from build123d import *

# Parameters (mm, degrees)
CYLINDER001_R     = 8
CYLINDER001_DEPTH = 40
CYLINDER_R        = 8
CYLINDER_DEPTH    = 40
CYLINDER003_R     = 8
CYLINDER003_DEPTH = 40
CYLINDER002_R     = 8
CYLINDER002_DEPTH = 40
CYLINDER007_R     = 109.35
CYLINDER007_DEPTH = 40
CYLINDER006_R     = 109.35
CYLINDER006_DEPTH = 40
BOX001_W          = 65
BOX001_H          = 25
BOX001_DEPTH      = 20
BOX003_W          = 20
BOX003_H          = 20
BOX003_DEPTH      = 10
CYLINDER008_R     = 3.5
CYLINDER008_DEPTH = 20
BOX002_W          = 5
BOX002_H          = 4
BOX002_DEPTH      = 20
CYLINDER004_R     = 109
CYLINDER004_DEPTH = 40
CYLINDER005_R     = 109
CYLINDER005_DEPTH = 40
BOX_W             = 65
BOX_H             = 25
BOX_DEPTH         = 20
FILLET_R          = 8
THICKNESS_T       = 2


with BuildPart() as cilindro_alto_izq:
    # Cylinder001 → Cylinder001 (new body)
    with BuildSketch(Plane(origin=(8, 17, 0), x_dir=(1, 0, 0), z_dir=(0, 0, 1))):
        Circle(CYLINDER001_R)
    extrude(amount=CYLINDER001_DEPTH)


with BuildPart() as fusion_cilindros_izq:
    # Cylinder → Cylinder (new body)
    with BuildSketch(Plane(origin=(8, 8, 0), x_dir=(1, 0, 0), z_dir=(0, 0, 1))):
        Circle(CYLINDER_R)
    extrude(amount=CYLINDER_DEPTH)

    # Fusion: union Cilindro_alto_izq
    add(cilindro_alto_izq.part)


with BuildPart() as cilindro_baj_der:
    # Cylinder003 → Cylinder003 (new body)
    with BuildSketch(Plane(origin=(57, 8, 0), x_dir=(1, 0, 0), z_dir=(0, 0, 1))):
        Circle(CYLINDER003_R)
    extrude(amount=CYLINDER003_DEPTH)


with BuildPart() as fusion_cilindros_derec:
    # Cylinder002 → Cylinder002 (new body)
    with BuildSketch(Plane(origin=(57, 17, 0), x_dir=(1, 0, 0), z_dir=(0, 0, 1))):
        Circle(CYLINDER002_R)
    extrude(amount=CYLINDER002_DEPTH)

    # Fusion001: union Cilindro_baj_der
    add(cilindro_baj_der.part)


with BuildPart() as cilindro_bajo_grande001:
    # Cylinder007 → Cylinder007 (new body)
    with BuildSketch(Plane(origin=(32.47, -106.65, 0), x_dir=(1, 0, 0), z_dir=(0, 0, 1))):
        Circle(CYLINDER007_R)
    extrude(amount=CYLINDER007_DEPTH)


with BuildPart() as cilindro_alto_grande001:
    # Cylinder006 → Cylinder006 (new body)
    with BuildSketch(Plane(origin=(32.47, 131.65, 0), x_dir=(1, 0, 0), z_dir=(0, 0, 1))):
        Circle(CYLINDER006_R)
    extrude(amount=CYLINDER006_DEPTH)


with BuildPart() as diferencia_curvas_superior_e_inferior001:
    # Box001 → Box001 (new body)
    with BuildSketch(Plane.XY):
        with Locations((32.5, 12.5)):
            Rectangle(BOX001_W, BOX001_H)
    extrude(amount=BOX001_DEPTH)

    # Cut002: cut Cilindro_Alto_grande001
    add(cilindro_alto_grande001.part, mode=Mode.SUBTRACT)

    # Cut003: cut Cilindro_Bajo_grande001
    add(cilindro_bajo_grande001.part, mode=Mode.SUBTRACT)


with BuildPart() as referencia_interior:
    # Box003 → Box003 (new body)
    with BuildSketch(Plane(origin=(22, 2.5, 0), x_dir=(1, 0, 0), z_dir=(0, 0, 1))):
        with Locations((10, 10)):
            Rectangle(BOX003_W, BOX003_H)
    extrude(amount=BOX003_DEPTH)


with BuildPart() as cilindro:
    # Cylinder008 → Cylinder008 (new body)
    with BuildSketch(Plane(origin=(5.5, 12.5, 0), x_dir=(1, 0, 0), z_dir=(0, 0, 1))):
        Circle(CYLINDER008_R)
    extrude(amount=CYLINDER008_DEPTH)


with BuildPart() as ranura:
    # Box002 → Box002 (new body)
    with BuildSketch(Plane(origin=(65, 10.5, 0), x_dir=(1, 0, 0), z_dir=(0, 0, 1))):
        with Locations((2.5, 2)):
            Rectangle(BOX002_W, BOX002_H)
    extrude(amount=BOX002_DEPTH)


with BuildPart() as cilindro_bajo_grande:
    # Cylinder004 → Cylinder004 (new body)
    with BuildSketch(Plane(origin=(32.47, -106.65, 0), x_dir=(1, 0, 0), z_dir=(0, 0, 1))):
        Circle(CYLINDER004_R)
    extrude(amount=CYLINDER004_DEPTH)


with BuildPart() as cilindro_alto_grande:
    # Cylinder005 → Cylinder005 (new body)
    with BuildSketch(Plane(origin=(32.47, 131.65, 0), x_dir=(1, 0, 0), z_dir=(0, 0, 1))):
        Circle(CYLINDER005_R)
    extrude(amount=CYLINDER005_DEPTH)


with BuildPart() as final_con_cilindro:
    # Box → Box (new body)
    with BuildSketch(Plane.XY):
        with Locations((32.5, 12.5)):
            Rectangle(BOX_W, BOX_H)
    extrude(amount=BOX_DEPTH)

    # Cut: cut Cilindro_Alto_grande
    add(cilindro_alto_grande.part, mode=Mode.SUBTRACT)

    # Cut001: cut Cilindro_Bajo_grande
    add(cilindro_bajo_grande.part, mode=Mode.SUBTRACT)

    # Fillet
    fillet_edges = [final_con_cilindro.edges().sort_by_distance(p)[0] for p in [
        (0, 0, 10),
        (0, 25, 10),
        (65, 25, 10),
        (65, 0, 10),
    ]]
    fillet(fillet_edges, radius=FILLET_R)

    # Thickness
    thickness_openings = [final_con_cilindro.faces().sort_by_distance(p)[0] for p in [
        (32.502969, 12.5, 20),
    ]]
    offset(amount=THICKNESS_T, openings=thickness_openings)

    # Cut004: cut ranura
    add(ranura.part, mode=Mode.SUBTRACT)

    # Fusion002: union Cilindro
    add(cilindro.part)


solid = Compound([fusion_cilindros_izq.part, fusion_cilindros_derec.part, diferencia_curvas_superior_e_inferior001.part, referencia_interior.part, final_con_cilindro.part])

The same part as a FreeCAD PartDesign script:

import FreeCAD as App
import Part
import Sketcher
from FreeCAD import Vector


def edges_at(feature, points):
    """Names of the edges that pass closest to the given points."""
    edges = feature.Shape.Edges
    near = lambda p: min(range(len(edges)), key=lambda i: edges[i].distToShape(Part.Vertex(*p))[0])
    return sorted({f"Edge{near(p) + 1}" for p in points})


def faces_at(feature, points):
    """Names of the faces that lie closest to the given points."""
    faces = feature.Shape.Faces
    near = lambda p: min(range(len(faces)), key=lambda i: faces[i].distToShape(Part.Vertex(*p))[0])
    return sorted({f"Face{near(p) + 1}" for p in points})

doc = App.newDocument("Part")
body = doc.addObject("PartDesign::Body", "Body")

# Sketch on XY plane
sketch1 = doc.addObject("Sketcher::SketchObject", "Sketch")
body.addObject(sketch1)
sketch1.AttachmentSupport = (doc.XY_Plane, [""])
sketch1.MapMode = "FlatFace"
sketch1.addGeometry(Part.Circle(Vector(8, 17, 0), Vector(0, 0, 1), 8), False)
sketch1.addConstraint([
    Sketcher.Constraint("Diameter", 0, 16.0),
    Sketcher.Constraint("DistanceX", -1, 1, 0, 3, 8.0),
    Sketcher.Constraint("DistanceY", -1, 1, 0, 3, 17.0),
])
pad1 = doc.addObject("PartDesign::Pad", "Pad")
body.addObject(pad1)
pad1.Profile = sketch1
pad1.Length = 40
body2 = doc.addObject("PartDesign::Body", "Body001")

# Sketch on XY plane
sketch2 = doc.addObject("Sketcher::SketchObject", "Sketch001")
body2.addObject(sketch2)
sketch2.AttachmentSupport = (doc.getObject("XY_Plane001"), [""])
sketch2.MapMode = "FlatFace"
sketch2.addGeometry(Part.Circle(Vector(8, 8, 0), Vector(0, 0, 1), 8), False)
sketch2.addConstraint([
    Sketcher.Constraint("Diameter", 0, 16.0),
    Sketcher.Constraint("DistanceX", -1, 1, 0, 3, 8.0),
    Sketcher.Constraint("DistanceY", -1, 1, 0, 3, 8.0),
])
pad2 = doc.addObject("PartDesign::Pad", "Pad001")
body2.addObject(pad2)
pad2.Profile = sketch2
pad2.Length = 40
doc.recompute()

boolean = doc.addObject("PartDesign::Boolean", "Boolean")
body2.addObject(boolean)
boolean.Type = "Fuse"
boolean.addObjects([body])
body3 = doc.addObject("PartDesign::Body", "Body002")

# Sketch on XY plane
sketch3 = doc.addObject("Sketcher::SketchObject", "Sketch002")
body3.addObject(sketch3)
sketch3.AttachmentSupport = (doc.getObject("XY_Plane002"), [""])
sketch3.MapMode = "FlatFace"
sketch3.addGeometry(Part.Circle(Vector(57, 8, 0), Vector(0, 0, 1), 8), False)
sketch3.addConstraint([
    Sketcher.Constraint("Diameter", 0, 16.0),
    Sketcher.Constraint("DistanceX", -1, 1, 0, 3, 57.0),
    Sketcher.Constraint("DistanceY", -1, 1, 0, 3, 8.0),
])
pad3 = doc.addObject("PartDesign::Pad", "Pad002")
body3.addObject(pad3)
pad3.Profile = sketch3
pad3.Length = 40
body4 = doc.addObject("PartDesign::Body", "Body003")

# Sketch on XY plane
sketch4 = doc.addObject("Sketcher::SketchObject", "Sketch003")
body4.addObject(sketch4)
sketch4.AttachmentSupport = (doc.getObject("XY_Plane003"), [""])
sketch4.MapMode = "FlatFace"
sketch4.addGeometry(Part.Circle(Vector(57, 17, 0), Vector(0, 0, 1), 8), False)
sketch4.addConstraint([
    Sketcher.Constraint("Diameter", 0, 16.0),
    Sketcher.Constraint("DistanceX", -1, 1, 0, 3, 57.0),
    Sketcher.Constraint("DistanceY", -1, 1, 0, 3, 17.0),
])
pad4 = doc.addObject("PartDesign::Pad", "Pad003")
body4.addObject(pad4)
pad4.Profile = sketch4
pad4.Length = 40
doc.recompute()

boolean2 = doc.addObject("PartDesign::Boolean", "Boolean001")
body4.addObject(boolean2)
boolean2.Type = "Fuse"
boolean2.addObjects([body3])
body5 = doc.addObject("PartDesign::Body", "Body004")

# Sketch on XY plane
sketch5 = doc.addObject("Sketcher::SketchObject", "Sketch004")
body5.addObject(sketch5)
sketch5.AttachmentSupport = (doc.getObject("XY_Plane004"), [""])
sketch5.MapMode = "FlatFace"
sketch5.addGeometry(Part.Circle(Vector(32, -107, 0), Vector(0, 0, 1), 109), False)
sketch5.addConstraint([
    Sketcher.Constraint("Diameter", 0, 218.7),
    Sketcher.Constraint("DistanceX", -1, 1, 0, 3, 32.47),
    Sketcher.Constraint("DistanceY", 0, 3, -1, 1, 106.65),
])
pad5 = doc.addObject("PartDesign::Pad", "Pad004")
body5.addObject(pad5)
pad5.Profile = sketch5
pad5.Length = 40
body6 = doc.addObject("PartDesign::Body", "Body005")

# Sketch on XY plane
sketch6 = doc.addObject("Sketcher::SketchObject", "Sketch005")
body6.addObject(sketch6)
sketch6.AttachmentSupport = (doc.getObject("XY_Plane005"), [""])
sketch6.MapMode = "FlatFace"
sketch6.addGeometry(Part.Circle(Vector(32, 132, 0), Vector(0, 0, 1), 109), False)
sketch6.addConstraint([
    Sketcher.Constraint("Diameter", 0, 218.7),
    Sketcher.Constraint("DistanceX", -1, 1, 0, 3, 32.47),
    Sketcher.Constraint("DistanceY", -1, 1, 0, 3, 131.65),
])
pad6 = doc.addObject("PartDesign::Pad", "Pad005")
body6.addObject(pad6)
pad6.Profile = sketch6
pad6.Length = 40
body7 = doc.addObject("PartDesign::Body", "Body006")

# Sketch on XY plane
sketch7 = doc.addObject("Sketcher::SketchObject", "Sketch006")
body7.addObject(sketch7)
sketch7.AttachmentSupport = (doc.getObject("XY_Plane006"), [""])
sketch7.MapMode = "FlatFace"
sketch7.addGeometry([
    Part.LineSegment(Vector(0, 25, 0), Vector(0, 0, 0)),
    Part.LineSegment(Vector(0, 0, 0), Vector(65, 0, 0)),
    Part.LineSegment(Vector(65, 0, 0), Vector(65, 25, 0)),
    Part.LineSegment(Vector(65, 25, 0), Vector(0, 25, 0)),
], False)
sketch7.addConstraint([
    Sketcher.Constraint("Coincident", 0, 2, 1, 1),
    Sketcher.Constraint("Coincident", 1, 2, 2, 1),
    Sketcher.Constraint("Coincident", 2, 2, 3, 1),
    Sketcher.Constraint("Coincident", 3, 2, 0, 1),
    Sketcher.Constraint("Vertical", 0),
    Sketcher.Constraint("Horizontal", 1),
    Sketcher.Constraint("Vertical", 2),
    Sketcher.Constraint("Horizontal", 3),
    Sketcher.Constraint("Coincident", 0, 2, -1, 1),
    Sketcher.Constraint("DistanceX", 1, 1, 1, 2, 65.0),
    Sketcher.Constraint("DistanceY", 0, 2, 0, 1, 25.0),
])
pad7 = doc.addObject("PartDesign::Pad", "Pad006")
body7.addObject(pad7)
pad7.Profile = sketch7
pad7.Length = 20
doc.recompute()

boolean3 = doc.addObject("PartDesign::Boolean", "Boolean002")
body7.addObject(boolean3)
boolean3.Type = "Cut"
boolean3.addObjects([body6])
doc.recompute()

boolean4 = doc.addObject("PartDesign::Boolean", "Boolean003")
body7.addObject(boolean4)
boolean4.Type = "Cut"
boolean4.addObjects([body5])
body8 = doc.addObject("PartDesign::Body", "Body007")

# Sketch on XY plane
sketch8 = doc.addObject("Sketcher::SketchObject", "Sketch007")
body8.addObject(sketch8)
sketch8.AttachmentSupport = (doc.getObject("XY_Plane007"), [""])
sketch8.MapMode = "FlatFace"
sketch8.addGeometry([
    Part.LineSegment(Vector(22, 22, 0), Vector(22, 2, 0)),
    Part.LineSegment(Vector(22, 2, 0), Vector(42, 2, 0)),
    Part.LineSegment(Vector(42, 2, 0), Vector(42, 22, 0)),
    Part.LineSegment(Vector(42, 22, 0), Vector(22, 22, 0)),
], False)
sketch8.addConstraint([
    Sketcher.Constraint("Coincident", 0, 2, 1, 1),
    Sketcher.Constraint("Coincident", 1, 2, 2, 1),
    Sketcher.Constraint("Coincident", 2, 2, 3, 1),
    Sketcher.Constraint("Coincident", 3, 2, 0, 1),
    Sketcher.Constraint("Vertical", 0),
    Sketcher.Constraint("Horizontal", 1),
    Sketcher.Constraint("Vertical", 2),
    Sketcher.Constraint("Horizontal", 3),
    Sketcher.Constraint("Equal", 3, 0),
    Sketcher.Constraint("DistanceX", 1, 1, 1, 2, 20.0),
    Sketcher.Constraint("DistanceX", -1, 1, 0, 2, 22.0),
    Sketcher.Constraint("DistanceY", -1, 1, 0, 2, 2.5),
])
pad8 = doc.addObject("PartDesign::Pad", "Pad007")
body8.addObject(pad8)
pad8.Profile = sketch8
pad8.Length = 10
body9 = doc.addObject("PartDesign::Body", "Body008")

# Sketch on XY plane
sketch9 = doc.addObject("Sketcher::SketchObject", "Sketch008")
body9.addObject(sketch9)
sketch9.AttachmentSupport = (doc.getObject("XY_Plane008"), [""])
sketch9.MapMode = "FlatFace"
sketch9.addGeometry(Part.Circle(Vector(5.5, 12.5, 0), Vector(0, 0, 1), 3.5), False)
sketch9.addConstraint([
    Sketcher.Constraint("Diameter", 0, 7.0),
    Sketcher.Constraint("DistanceX", -1, 1, 0, 3, 5.5),
    Sketcher.Constraint("DistanceY", -1, 1, 0, 3, 12.5),
])
pad9 = doc.addObject("PartDesign::Pad", "Pad008")
body9.addObject(pad9)
pad9.Profile = sketch9
pad9.Length = 20
body10 = doc.addObject("PartDesign::Body", "Body009")

# Sketch on XY plane
sketch10 = doc.addObject("Sketcher::SketchObject", "Sketch009")
body10.addObject(sketch10)
sketch10.AttachmentSupport = (doc.getObject("XY_Plane009"), [""])
sketch10.MapMode = "FlatFace"
sketch10.addGeometry([
    Part.LineSegment(Vector(65, 14.5, 0), Vector(65, 10.5, 0)),
    Part.LineSegment(Vector(65, 10.5, 0), Vector(70, 10.5, 0)),
    Part.LineSegment(Vector(70, 10.5, 0), Vector(70, 14.5, 0)),
    Part.LineSegment(Vector(70, 14.5, 0), Vector(65, 14.5, 0)),
], False)
sketch10.addConstraint([
    Sketcher.Constraint("Coincident", 0, 2, 1, 1),
    Sketcher.Constraint("Coincident", 1, 2, 2, 1),
    Sketcher.Constraint("Coincident", 2, 2, 3, 1),
    Sketcher.Constraint("Coincident", 3, 2, 0, 1),
    Sketcher.Constraint("Vertical", 0),
    Sketcher.Constraint("Horizontal", 1),
    Sketcher.Constraint("Vertical", 2),
    Sketcher.Constraint("Horizontal", 3),
    Sketcher.Constraint("DistanceX", 1, 1, 1, 2, 5.0),
    Sketcher.Constraint("DistanceY", 0, 2, 0, 1, 4.0),
    Sketcher.Constraint("DistanceX", -1, 1, 0, 2, 65.0),
    Sketcher.Constraint("DistanceY", -1, 1, 0, 2, 10.5),
])
pad10 = doc.addObject("PartDesign::Pad", "Pad009")
body10.addObject(pad10)
pad10.Profile = sketch10
pad10.Length = 20
body11 = doc.addObject("PartDesign::Body", "Body010")

# Sketch on XY plane
sketch11 = doc.addObject("Sketcher::SketchObject", "Sketch010")
body11.addObject(sketch11)
sketch11.AttachmentSupport = (doc.getObject("XY_Plane010"), [""])
sketch11.MapMode = "FlatFace"
sketch11.addGeometry(Part.Circle(Vector(32, -107, 0), Vector(0, 0, 1), 109), False)
sketch11.addConstraint([
    Sketcher.Constraint("Diameter", 0, 218.0),
    Sketcher.Constraint("DistanceX", -1, 1, 0, 3, 32.47),
    Sketcher.Constraint("DistanceY", 0, 3, -1, 1, 106.65),
])
pad11 = doc.addObject("PartDesign::Pad", "Pad010")
body11.addObject(pad11)
pad11.Profile = sketch11
pad11.Length = 40
body12 = doc.addObject("PartDesign::Body", "Body011")

# Sketch on XY plane
sketch12 = doc.addObject("Sketcher::SketchObject", "Sketch011")
body12.addObject(sketch12)
sketch12.AttachmentSupport = (doc.getObject("XY_Plane011"), [""])
sketch12.MapMode = "FlatFace"
sketch12.addGeometry(Part.Circle(Vector(32, 132, 0), Vector(0, 0, 1), 109), False)
sketch12.addConstraint([
    Sketcher.Constraint("Diameter", 0, 218.0),
    Sketcher.Constraint("DistanceX", -1, 1, 0, 3, 32.47),
    Sketcher.Constraint("DistanceY", -1, 1, 0, 3, 131.65),
])
pad12 = doc.addObject("PartDesign::Pad", "Pad011")
body12.addObject(pad12)
pad12.Profile = sketch12
pad12.Length = 40
body13 = doc.addObject("PartDesign::Body", "Body012")

# Sketch on XY plane
sketch13 = doc.addObject("Sketcher::SketchObject", "Sketch012")
body13.addObject(sketch13)
sketch13.AttachmentSupport = (doc.getObject("XY_Plane012"), [""])
sketch13.MapMode = "FlatFace"
sketch13.addGeometry([
    Part.LineSegment(Vector(0, 25, 0), Vector(0, 0, 0)),
    Part.LineSegment(Vector(0, 0, 0), Vector(65, 0, 0)),
    Part.LineSegment(Vector(65, 0, 0), Vector(65, 25, 0)),
    Part.LineSegment(Vector(65, 25, 0), Vector(0, 25, 0)),
], False)
sketch13.addConstraint([
    Sketcher.Constraint("Coincident", 0, 2, 1, 1),
    Sketcher.Constraint("Coincident", 1, 2, 2, 1),
    Sketcher.Constraint("Coincident", 2, 2, 3, 1),
    Sketcher.Constraint("Coincident", 3, 2, 0, 1),
    Sketcher.Constraint("Vertical", 0),
    Sketcher.Constraint("Horizontal", 1),
    Sketcher.Constraint("Vertical", 2),
    Sketcher.Constraint("Horizontal", 3),
    Sketcher.Constraint("Coincident", 0, 2, -1, 1),
    Sketcher.Constraint("DistanceX", 1, 1, 1, 2, 65.0),
    Sketcher.Constraint("DistanceY", 0, 2, 0, 1, 25.0),
])
pad13 = doc.addObject("PartDesign::Pad", "Pad012")
body13.addObject(pad13)
pad13.Profile = sketch13
pad13.Length = 20
doc.recompute()

boolean5 = doc.addObject("PartDesign::Boolean", "Boolean004")
body13.addObject(boolean5)
boolean5.Type = "Cut"
boolean5.addObjects([body12])
doc.recompute()

boolean6 = doc.addObject("PartDesign::Boolean", "Boolean005")
body13.addObject(boolean6)
boolean6.Type = "Cut"
boolean6.addObjects([body11])
doc.recompute()

fillet = doc.addObject("PartDesign::Fillet", "Fillet")
body13.addObject(fillet)
fillet.Base = (boolean6, edges_at(boolean6, [
    (0, 0, 10),
    (0, 25, 10),
    (65, 25, 10),
    (65, 0, 10),
]))
fillet.Radius = 8
doc.recompute()

thickness = doc.addObject("PartDesign::Thickness", "Thickness")
body13.addObject(thickness)
thickness.Base = (fillet, faces_at(fillet, [(32.5, 12.5, 20)]))
thickness.Value = 2
thickness.Reversed = False
thickness.Join = "Arc"
doc.recompute()

boolean7 = doc.addObject("PartDesign::Boolean", "Boolean006")
body13.addObject(boolean7)
boolean7.Type = "Cut"
boolean7.addObjects([body10])
doc.recompute()

boolean8 = doc.addObject("PartDesign::Boolean", "Boolean007")
body13.addObject(boolean8)
boolean8.Type = "Fuse"
boolean8.addObjects([body9])

doc.recompute()
